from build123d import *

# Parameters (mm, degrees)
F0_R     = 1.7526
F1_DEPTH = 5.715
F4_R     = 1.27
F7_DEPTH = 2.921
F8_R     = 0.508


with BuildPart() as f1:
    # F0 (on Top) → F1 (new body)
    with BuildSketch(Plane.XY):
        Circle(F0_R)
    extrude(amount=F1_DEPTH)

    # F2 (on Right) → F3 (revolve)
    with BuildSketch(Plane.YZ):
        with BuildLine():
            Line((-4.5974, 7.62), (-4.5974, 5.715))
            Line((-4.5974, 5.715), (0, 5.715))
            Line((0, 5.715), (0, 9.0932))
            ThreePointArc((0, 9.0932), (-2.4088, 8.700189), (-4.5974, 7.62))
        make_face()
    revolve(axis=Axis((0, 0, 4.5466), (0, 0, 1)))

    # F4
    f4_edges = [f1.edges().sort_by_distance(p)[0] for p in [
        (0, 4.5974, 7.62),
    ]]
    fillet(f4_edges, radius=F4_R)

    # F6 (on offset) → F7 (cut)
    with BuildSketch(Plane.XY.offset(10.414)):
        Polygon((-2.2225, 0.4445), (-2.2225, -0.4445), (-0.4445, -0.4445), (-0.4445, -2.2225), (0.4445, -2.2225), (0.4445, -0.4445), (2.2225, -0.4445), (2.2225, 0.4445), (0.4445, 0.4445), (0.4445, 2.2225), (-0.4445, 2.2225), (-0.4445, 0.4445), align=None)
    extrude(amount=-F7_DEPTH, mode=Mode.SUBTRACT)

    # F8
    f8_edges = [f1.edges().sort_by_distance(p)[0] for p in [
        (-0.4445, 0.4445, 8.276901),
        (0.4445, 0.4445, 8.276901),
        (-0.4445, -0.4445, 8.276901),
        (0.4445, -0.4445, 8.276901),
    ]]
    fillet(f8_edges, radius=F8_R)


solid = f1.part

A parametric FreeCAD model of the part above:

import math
import FreeCAD as App
import Part
import Sketcher

V = App.Vector
Q = App.Units.Quantity


def edges_at(feature, points):
    """Names of the edges that pass closest to the given points."""
    edges = feature.Shape.Edges
    near = lambda p: min(range(len(edges)), key=lambda i: edges[i].distToShape(Part.Vertex(*p))[0])
    return sorted({f"Edge{near(p) + 1}" for p in points})

doc = App.newDocument("Part")
body = doc.addObject("PartDesign::Body", "Body")

sketch1 = doc.addObject("Sketcher::SketchObject", "Sketch")
body.addObject(sketch1)
sketch1.AttachmentSupport = (doc.XY_Plane, [""])
sketch1.MapMode = "FlatFace"
sketch1.addGeometry(Part.Circle(V(0, 0, 0), V(0, 0, 1), 1.8), False)
sketch1.addConstraint(Sketcher.Constraint("Coincident", 0, 3, -1, 1))
sketch1.addConstraint(Sketcher.Constraint("Diameter", 0, Q("0.138 in")))
pad1 = doc.addObject("PartDesign::Pad", "Pad")
body.addObject(pad1)
pad1.Profile = sketch1
pad1.Length = Q("0.225 in")

sketch2 = doc.addObject("Sketcher::SketchObject", "Sketch001")
body.addObject(sketch2)
sketch2.AttachmentSupport = (doc.YZ_Plane, [""])
sketch2.MapMode = "FlatFace"
sketch2.addGeometry(Part.LineSegment(V(-4.6, 7.6, 0), V(-4.6, 5.7, 0)), False)
sketch2.addGeometry(Part.LineSegment(V(-4.6, 5.7, 0), V(0, 5.7, 0)), False)
sketch2.addGeometry(Part.LineSegment(V(0, 5.7, 0), V(0, 9.1, 0)), False)
sketch2.addGeometry(Part.ArcOfCircle(Part.Circle(V(0.1, 0.8, 0), V(0, 0, 1), 8.3), math.radians(91), math.radians(125)), False)
sketch2.addConstraint(Sketcher.Constraint("Coincident", 0, 2, 1, 1))
sketch2.addConstraint(Sketcher.Constraint("Coincident", 1, 2, 2, 1))
sketch2.addConstraint(Sketcher.Constraint("Coincident", 2, 2, 3, 1))
sketch2.addConstraint(Sketcher.Constraint("Coincident", 3, 2, 0, 1))
sketch2.addConstraint(Sketcher.Constraint("Vertical", 0))
sketch2.addConstraint(Sketcher.Constraint("Horizontal", 1))
sketch2.addConstraint(Sketcher.Constraint("Vertical", 2))
sketch2.addConstraint(Sketcher.Constraint("PointOnObject", 1, 2, -2))
sketch2.addConstraint(Sketcher.Constraint("Radius", 3, Q("0.3249998 in")))
sketch2.addConstraint(Sketcher.Constraint("DistanceY", -1, 1, 3, 2, Q("0.3 in")))
sketch2.addConstraint(Sketcher.Constraint("DistanceX", 1, 1, 1, 2, Q("0.181 in")))
sketch2.addConstraint(Sketcher.Constraint("DistanceY", 0, 2, 0, 1, Q("0.075 in")))
sketch2.addConstraint(Sketcher.Constraint("DistanceY", 2, 1, 2, 2, Q("0.133 in")))
revolution = doc.addObject("PartDesign::Revolution", "Revolution")
body.addObject(revolution)
revolution.Profile = sketch2
revolution.ReferenceAxis = (sketch2, ["V_Axis"])
revolution.Angle = 360
doc.recompute()

fillet = doc.addObject("PartDesign::Fillet", "Fillet")
body.addObject(fillet)
fillet.Base = (revolution, edges_at(revolution, [(0, 4.597, 7.62)]))
fillet.Radius = Q("0.05 in")

sketch3 = doc.addObject("Sketcher::SketchObject", "Sketch002")
body.addObject(sketch3)
sketch3.AttachmentSupport = (doc.XY_Plane, [""])
sketch3.MapMode = "FlatFace"
sketch3.AttachmentOffset = App.Placement(V(0, 0, 0.41 * 25.4), App.Rotation())
sketch3.addGeometry(Part.LineSegment(V(-2.2, 0.4, 0), V(-2.2, -0.4, 0)), False)
sketch3.addGeometry(Part.LineSegment(V(-2.2, -0.4, 0), V(-0.4, -0.4, 0)), False)
sketch3.addGeometry(Part.LineSegment(V(-0.4, -0.4, 0), V(-0.4, -2.2, 0)), False)
sketch3.addGeometry(Part.LineSegment(V(-0.4, -2.2, 0), V(0.4, -2.2, 0)), False)
sketch3.addGeometry(Part.LineSegment(V(0.4, -2.2, 0), V(0.4, -0.4, 0)), False)
sketch3.addGeometry(Part.LineSegment(V(0.4, -0.4, 0), V(2.2, -0.4, 0)), False)
sketch3.addGeometry(Part.LineSegment(V(2.2, -0.4, 0), V(2.2, 0.4, 0)), False)
sketch3.addGeometry(Part.LineSegment(V(2.2, 0.4, 0), V(0.4, 0.4, 0)), False)
sketch3.addGeometry(Part.LineSegment(V(0.4, 0.4, 0), V(0.4, 2.2, 0)), False)
sketch3.addGeometry(Part.LineSegment(V(0.4, 2.2, 0), V(-0.4, 2.2, 0)), False)
sketch3.addGeometry(Part.LineSegment(V(-0.4, 2.2, 0), V(-0.4, 0.4, 0)), False)
sketch3.addGeometry(Part.LineSegment(V(-0.4, 0.4, 0), V(-2.2, 0.4, 0)), False)
sketch3.addConstraint(Sketcher.Constraint("Coincident", 0, 2, 1, 1))
sketch3.addConstraint(Sketcher.Constraint("Coincident", 1, 2, 2, 1))
sketch3.addConstraint(Sketcher.Constraint("Coincident", 2, 2, 3, 1))
sketch3.addConstraint(Sketcher.Constraint("Coincident", 3, 2, 4, 1))
sketch3.addConstraint(Sketcher.Constraint("Coincident", 4, 2, 5, 1))
sketch3.addConstraint(Sketcher.Constraint("Coincident", 5, 2, 6, 1))
sketch3.addConstraint(Sketcher.Constraint("Coincident", 6, 2, 7, 1))
sketch3.addConstraint(Sketcher.Constraint("Coincident", 7, 2, 8, 1))
sketch3.addConstraint(Sketcher.Constraint("Coincident", 8, 2, 9, 1))
sketch3.addConstraint(Sketcher.Constraint("Coincident", 9, 2, 10, 1))
sketch3.addConstraint(Sketcher.Constraint("Coincident", 10, 2, 11, 1))
sketch3.addConstraint(Sketcher.Constraint("Coincident", 11, 2, 0, 1))
sketch3.addConstraint(Sketcher.Constraint("Vertical", 0))
sketch3.addConstraint(Sketcher.Constraint("Horizontal", 1))
sketch3.addConstraint(Sketcher.Constraint("Vertical", 2))
sketch3.addConstraint(Sketcher.Constraint("Horizontal", 3))
sketch3.addConstraint(Sketcher.Constraint("Vertical", 4))
sketch3.addConstraint(Sketcher.Constraint("Horizontal", 5))
sketch3.addConstraint(Sketcher.Constraint("Vertical", 6))
sketch3.addConstraint(Sketcher.Constraint("Horizontal", 7))
sketch3.addConstraint(Sketcher.Constraint("Vertical", 8))
sketch3.addConstraint(Sketcher.Constraint("Horizontal", 9))
sketch3.addConstraint(Sketcher.Constraint("Vertical", 10))
sketch3.addConstraint(Sketcher.Constraint("Horizontal", 11))
sketch3.addConstraint(Sketcher.Constraint("Symmetric", 0, 2, 6, 2, -1, 1))
sketch3.addConstraint(Sketcher.Constraint("Symmetric", 2, 2, 8, 2, -1, 1))
sketch3.addConstraint(Sketcher.Constraint("Symmetric", 4, 2, 10, 2, -1, 1))
sketch3.addConstraint(Sketcher.Constraint("Symmetric", 1, 2, 4, 2, -2))
sketch3.addConstraint(Sketcher.Constraint("Equal", 9, 0))
sketch3.addConstraint(Sketcher.Constraint("Equal", 11, 2))
sketch3.addConstraint(Sketcher.Constraint("DistanceX", 1, 1, 1, 2, Q("0.07 in")))
sketch3.addConstraint(Sketcher.Constraint("DistanceX", 3, 1, 3, 2, Q("0.035 in")))
pocket1 = doc.addObject("PartDesign::Pocket", "Pocket")
body.addObject(pocket1)
pocket1.Profile = sketch3
pocket1.Length = Q("0.115 in")
doc.recompute()

fillet2 = doc.addObject("PartDesign::Fillet", "Fillet001")
body.addObject(fillet2)
fillet2.Base = (pocket1, edges_at(pocket1, [
    (-0.445, 0.445, 8.277),
    (0.445, 0.445, 8.277),
    (-0.445, -0.445, 8.277),
    (0.445, -0.445, 8.277),
]))
fillet2.Radius = Q("0.02 in")

doc.recompute()
